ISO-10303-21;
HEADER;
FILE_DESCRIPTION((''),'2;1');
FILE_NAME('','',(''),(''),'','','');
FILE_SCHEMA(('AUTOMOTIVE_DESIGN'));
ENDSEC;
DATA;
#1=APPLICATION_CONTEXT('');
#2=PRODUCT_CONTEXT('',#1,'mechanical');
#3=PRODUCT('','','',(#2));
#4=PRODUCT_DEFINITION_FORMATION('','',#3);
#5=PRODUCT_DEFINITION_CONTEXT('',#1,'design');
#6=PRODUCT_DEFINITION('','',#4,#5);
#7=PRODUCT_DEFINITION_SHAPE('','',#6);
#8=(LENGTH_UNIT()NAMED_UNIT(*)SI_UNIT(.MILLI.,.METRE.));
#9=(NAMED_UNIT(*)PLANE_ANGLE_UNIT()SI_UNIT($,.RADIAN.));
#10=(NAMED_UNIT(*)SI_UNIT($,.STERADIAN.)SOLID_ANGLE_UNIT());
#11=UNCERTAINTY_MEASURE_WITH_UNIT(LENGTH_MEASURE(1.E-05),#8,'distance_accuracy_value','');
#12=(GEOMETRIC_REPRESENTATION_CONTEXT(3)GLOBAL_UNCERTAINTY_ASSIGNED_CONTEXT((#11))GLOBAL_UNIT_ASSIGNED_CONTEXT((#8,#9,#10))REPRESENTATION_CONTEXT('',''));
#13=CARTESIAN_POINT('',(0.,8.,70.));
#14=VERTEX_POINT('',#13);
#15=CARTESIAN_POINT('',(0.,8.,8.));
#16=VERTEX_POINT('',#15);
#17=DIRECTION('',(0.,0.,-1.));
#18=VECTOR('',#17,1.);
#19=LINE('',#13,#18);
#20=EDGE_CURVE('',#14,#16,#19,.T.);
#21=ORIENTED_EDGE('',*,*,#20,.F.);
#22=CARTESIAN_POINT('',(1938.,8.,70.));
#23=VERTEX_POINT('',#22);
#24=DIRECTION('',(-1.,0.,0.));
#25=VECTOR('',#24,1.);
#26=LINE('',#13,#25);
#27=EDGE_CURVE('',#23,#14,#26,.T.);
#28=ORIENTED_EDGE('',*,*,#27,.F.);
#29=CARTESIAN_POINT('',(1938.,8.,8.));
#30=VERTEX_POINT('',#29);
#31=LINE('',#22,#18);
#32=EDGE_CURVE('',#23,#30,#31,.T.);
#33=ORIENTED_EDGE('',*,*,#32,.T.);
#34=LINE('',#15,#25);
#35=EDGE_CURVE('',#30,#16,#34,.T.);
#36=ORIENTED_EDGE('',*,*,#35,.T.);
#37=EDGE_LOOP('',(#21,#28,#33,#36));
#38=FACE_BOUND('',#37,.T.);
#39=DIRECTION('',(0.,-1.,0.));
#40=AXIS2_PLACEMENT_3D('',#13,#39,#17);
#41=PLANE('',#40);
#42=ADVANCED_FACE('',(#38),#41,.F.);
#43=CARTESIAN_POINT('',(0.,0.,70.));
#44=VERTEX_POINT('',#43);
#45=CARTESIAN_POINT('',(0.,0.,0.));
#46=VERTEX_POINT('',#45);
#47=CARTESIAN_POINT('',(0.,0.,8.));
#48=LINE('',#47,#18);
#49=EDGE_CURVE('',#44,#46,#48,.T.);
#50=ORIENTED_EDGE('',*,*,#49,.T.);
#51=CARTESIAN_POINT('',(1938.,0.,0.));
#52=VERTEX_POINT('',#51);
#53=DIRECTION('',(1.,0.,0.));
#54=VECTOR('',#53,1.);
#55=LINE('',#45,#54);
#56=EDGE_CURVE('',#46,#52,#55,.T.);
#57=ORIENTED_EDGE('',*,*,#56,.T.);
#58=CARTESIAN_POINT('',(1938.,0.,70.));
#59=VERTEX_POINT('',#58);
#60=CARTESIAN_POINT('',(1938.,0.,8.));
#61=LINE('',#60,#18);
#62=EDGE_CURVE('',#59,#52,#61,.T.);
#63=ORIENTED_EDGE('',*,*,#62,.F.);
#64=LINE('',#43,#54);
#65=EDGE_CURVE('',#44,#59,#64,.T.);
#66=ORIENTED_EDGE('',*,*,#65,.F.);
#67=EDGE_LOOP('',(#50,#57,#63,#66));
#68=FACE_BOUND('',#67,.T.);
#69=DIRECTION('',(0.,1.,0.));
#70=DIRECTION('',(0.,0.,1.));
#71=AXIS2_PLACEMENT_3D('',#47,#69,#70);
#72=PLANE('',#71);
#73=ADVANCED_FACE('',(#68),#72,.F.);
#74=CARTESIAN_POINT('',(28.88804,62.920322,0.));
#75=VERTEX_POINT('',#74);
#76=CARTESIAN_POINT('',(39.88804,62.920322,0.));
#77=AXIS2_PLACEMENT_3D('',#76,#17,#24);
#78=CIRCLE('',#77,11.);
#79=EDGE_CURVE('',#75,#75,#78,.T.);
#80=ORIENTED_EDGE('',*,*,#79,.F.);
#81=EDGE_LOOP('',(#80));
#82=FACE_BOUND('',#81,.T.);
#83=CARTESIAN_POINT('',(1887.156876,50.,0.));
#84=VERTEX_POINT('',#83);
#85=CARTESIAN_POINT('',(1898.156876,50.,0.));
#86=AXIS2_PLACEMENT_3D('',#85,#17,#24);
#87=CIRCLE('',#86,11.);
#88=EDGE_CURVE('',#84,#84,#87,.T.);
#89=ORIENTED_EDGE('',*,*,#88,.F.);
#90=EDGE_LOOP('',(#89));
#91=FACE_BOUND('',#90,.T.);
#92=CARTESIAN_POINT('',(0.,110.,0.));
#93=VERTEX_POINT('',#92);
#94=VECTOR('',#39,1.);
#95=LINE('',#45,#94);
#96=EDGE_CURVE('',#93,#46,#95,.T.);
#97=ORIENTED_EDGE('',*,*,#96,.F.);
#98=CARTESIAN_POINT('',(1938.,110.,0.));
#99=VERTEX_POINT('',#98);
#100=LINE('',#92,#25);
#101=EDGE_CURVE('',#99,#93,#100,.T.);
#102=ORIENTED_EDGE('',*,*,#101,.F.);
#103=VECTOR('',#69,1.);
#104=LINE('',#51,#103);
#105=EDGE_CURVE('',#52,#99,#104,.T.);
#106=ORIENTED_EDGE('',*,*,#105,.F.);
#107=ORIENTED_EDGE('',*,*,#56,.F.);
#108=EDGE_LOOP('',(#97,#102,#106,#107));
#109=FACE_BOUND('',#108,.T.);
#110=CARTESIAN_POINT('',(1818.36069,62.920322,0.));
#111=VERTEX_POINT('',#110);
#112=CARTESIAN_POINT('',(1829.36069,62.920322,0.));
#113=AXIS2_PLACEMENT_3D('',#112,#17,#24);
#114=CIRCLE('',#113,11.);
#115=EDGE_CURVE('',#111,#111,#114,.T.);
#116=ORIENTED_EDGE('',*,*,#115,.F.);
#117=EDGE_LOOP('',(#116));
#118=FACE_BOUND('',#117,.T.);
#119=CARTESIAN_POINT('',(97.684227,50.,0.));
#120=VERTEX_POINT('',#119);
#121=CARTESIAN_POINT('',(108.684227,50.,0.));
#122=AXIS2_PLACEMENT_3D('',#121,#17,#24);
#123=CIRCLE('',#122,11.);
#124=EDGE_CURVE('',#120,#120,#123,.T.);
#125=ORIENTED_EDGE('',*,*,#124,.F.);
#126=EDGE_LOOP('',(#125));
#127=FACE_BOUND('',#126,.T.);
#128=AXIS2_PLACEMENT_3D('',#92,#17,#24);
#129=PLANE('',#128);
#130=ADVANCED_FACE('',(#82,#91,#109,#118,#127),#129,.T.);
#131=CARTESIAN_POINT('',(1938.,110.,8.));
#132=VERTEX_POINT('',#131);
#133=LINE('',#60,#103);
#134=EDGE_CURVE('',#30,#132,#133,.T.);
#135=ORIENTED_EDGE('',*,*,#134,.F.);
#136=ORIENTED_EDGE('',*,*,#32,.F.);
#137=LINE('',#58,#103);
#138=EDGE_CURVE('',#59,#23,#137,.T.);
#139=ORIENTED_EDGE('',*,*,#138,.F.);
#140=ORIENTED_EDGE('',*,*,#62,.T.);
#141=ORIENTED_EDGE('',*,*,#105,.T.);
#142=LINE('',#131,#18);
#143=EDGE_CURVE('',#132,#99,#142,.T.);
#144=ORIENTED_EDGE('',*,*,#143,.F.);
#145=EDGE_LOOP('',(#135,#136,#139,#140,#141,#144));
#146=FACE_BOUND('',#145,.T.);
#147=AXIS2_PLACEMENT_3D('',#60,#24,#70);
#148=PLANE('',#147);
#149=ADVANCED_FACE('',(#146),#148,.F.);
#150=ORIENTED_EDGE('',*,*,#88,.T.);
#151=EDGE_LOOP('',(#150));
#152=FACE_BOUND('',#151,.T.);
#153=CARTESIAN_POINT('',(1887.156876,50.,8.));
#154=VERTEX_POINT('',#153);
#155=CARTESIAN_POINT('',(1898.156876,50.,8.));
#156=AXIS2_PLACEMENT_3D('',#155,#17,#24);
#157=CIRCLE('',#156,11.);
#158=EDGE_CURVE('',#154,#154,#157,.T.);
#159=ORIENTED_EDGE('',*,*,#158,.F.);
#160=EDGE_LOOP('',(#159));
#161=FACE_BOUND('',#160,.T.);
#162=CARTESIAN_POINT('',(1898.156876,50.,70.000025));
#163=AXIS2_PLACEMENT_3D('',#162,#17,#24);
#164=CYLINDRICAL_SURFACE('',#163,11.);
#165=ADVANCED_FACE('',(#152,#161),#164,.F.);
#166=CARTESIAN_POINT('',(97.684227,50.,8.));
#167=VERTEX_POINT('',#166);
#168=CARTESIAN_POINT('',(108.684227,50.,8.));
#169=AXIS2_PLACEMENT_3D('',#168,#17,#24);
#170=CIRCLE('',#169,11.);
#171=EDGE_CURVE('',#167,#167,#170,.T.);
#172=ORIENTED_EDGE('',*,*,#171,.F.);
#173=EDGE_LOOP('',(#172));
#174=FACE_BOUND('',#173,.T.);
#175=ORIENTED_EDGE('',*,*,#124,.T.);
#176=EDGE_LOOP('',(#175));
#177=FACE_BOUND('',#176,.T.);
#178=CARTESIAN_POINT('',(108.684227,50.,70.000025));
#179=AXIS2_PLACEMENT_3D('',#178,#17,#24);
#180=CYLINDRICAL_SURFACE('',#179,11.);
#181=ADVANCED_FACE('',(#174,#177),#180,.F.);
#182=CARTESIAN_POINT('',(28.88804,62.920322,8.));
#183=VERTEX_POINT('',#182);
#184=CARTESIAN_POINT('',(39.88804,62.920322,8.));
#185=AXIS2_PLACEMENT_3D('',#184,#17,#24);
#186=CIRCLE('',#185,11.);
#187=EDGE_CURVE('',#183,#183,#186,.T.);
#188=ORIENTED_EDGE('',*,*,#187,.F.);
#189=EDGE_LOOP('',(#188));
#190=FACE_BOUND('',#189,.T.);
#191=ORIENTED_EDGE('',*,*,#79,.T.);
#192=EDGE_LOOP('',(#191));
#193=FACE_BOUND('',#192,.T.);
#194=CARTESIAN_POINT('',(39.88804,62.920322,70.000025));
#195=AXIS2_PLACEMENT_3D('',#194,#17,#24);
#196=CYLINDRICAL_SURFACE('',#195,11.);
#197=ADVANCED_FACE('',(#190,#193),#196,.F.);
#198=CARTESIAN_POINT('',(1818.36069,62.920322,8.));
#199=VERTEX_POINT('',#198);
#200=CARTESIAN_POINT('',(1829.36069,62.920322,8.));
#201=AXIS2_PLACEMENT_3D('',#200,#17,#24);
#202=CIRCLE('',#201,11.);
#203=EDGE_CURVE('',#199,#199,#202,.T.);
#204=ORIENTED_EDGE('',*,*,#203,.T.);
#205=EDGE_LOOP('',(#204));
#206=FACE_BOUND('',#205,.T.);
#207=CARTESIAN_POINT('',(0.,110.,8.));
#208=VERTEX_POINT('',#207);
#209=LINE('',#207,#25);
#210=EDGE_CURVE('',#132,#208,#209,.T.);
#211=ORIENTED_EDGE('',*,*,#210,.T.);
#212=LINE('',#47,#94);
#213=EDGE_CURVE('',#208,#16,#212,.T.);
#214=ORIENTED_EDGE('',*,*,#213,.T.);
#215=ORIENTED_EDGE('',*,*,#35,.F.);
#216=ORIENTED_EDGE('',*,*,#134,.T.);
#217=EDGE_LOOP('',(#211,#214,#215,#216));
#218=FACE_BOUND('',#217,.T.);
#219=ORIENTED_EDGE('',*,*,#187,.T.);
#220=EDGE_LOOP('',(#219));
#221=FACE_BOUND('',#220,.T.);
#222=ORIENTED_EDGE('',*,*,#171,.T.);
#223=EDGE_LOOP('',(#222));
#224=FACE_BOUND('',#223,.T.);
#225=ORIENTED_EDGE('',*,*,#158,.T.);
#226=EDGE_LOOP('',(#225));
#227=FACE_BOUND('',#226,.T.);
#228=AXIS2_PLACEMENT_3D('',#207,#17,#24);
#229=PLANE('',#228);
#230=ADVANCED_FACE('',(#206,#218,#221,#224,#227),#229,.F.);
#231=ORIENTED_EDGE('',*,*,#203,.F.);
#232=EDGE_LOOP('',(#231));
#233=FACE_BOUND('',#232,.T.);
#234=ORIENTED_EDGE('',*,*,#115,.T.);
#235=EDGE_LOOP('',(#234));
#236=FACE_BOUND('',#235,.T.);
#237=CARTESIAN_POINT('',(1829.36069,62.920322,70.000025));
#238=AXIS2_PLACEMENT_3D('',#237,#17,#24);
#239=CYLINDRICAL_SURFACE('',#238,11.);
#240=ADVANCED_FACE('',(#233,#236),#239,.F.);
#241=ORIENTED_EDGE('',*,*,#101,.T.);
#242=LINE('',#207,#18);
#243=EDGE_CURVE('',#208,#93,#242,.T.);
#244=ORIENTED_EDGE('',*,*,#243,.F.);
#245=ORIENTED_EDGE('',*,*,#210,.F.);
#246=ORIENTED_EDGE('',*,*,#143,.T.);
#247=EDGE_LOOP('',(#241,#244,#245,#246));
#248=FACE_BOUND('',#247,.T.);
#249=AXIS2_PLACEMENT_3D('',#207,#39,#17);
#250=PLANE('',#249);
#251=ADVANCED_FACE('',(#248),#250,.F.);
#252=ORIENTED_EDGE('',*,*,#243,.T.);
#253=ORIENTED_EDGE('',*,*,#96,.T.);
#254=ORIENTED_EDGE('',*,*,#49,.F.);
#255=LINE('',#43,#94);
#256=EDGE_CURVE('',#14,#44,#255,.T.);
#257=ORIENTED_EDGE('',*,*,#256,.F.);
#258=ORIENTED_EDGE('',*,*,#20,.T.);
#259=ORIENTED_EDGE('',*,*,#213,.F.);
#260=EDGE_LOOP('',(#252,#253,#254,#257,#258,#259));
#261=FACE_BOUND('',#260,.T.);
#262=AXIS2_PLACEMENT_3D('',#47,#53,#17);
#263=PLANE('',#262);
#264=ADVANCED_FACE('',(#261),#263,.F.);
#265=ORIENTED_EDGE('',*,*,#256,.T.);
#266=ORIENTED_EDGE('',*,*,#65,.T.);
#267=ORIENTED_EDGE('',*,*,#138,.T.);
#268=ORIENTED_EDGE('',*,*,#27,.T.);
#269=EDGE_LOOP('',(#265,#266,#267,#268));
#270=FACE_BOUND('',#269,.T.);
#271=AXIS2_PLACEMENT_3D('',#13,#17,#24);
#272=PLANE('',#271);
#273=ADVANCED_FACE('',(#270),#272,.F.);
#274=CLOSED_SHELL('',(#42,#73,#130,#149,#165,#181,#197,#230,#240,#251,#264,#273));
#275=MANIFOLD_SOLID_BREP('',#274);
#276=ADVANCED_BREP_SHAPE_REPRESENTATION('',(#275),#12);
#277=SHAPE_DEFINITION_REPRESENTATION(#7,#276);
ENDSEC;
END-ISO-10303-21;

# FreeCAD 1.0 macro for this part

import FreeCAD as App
import Part
import Sketcher

V = App.Vector


def add_polygon(sketch, points):
    """Adds a closed chain of lines whose ends are joined by coincident constraints."""
    first, n = sketch.GeometryCount, len(points)
    for a, b in zip(points, points[1:] + points[:1]):
        sketch.addGeometry(Part.LineSegment(App.Vector(*a, 0), App.Vector(*b, 0)), False)
    for i in range(n):
        sketch.addConstraint(Sketcher.Constraint("Coincident", first + i, 2, first + (i + 1) % n, 1))

doc = App.newDocument("Part")
body = doc.addObject("PartDesign::Body", "Body")

# Sketch on XY plane
sketch1 = body.newObject("Sketcher::SketchObject", "Sketch")
sketch1.AttachmentSupport = (doc.getObject("XY_Plane"), [""])
sketch1.MapMode = "FlatFace"
add_polygon(sketch1, [(0, 110), (0, 0), (1938, 0), (1938, 110)])  # lines 0-3
sketch1.addConstraint([
    Sketcher.Constraint("Vertical", 0),
    Sketcher.Constraint("Horizontal", 1),
    Sketcher.Constraint("Vertical", 2),
    Sketcher.Constraint("Horizontal", 3),
    Sketcher.Constraint("Coincident", 0, 2, -1, 1),
    Sketcher.Constraint("DistanceX", 1, 1, 1, 2, 1938.0),
    Sketcher.Constraint("DistanceY", 0, 2, 0, 1, 110.0),
])
pad1 = body.newObject("PartDesign::Pad", "Pad")
pad1.Profile = sketch1
pad1.Length = 8

# Sketch on XY plane
sketch2 = body.newObject("Sketcher::SketchObject", "Sketch001")
sketch2.AttachmentSupport = (doc.getObject("XY_Plane"), [""])
sketch2.MapMode = "FlatFace"
sketch2.AttachmentOffset = App.Placement(V(0, 0, 8), App.Rotation())
add_polygon(sketch2, [(0, 8), (0, 0), (1938, 0), (1938, 8)])  # lines 0-3
sketch2.addConstraint([
    Sketcher.Constraint("Vertical", 0),
    Sketcher.Constraint("Horizontal", 1),
    Sketcher.Constraint("Vertical", 2),
    Sketcher.Constraint("Horizontal", 3),
    Sketcher.Constraint("Coincident", 0, 2, -1, 1),
    Sketcher.Constraint("DistanceX", 1, 1, 1, 2, 1938.0),
    Sketcher.Constraint("DistanceY", 0, 2, 0, 1, 8.0),
])
pad2 = body.newObject("PartDesign::Pad", "Pad001")
pad2.Profile = sketch2
pad2.Length = 62

# Sketch on XY plane
sketch3 = body.newObject("Sketcher::SketchObject", "Sketch002")
sketch3.AttachmentSupport = (doc.getObject("XY_Plane"), [""])
sketch3.MapMode = "FlatFace"
sketch3.addGeometry([
    Part.Circle(V(1898, 50, 0), V(0, 0, 1), 11),
    Part.Circle(V(1829, 63, 0), V(0, 0, 1), 11),
    Part.Circle(V(109, 50, 0), V(0, 0, 1), 11),
    Part.Circle(V(40, 63, 0), V(0, 0, 1), 11),
], False)
sketch3.addConstraint([
    Sketcher.Constraint("Equal", 0, 1),
    Sketcher.Constraint("Equal", 1, 2),
    Sketcher.Constraint("Equal", 2, 3),
    Sketcher.Constraint("Horizontal", 0, 3, 2, 3),
    Sketcher.Constraint("Horizontal", 1, 3, 3, 3),
    Sketcher.Constraint("Diameter", 0, 22.0),
    Sketcher.Constraint("DistanceY", -1, 1, 0, 3, 50.0),
    Sketcher.Constraint("DistanceX", -1, 1, 1, 3, 1829.36069),
    Sketcher.Constraint("DistanceY", -1, 1, 1, 3, 62.920322),
    Sketcher.Constraint("DistanceX", -1, 1, 3, 3, 39.88804),
    Sketcher.Constraint("DistanceX", 2, 3, 0, 3, 1789.472649),
    Sketcher.Constraint("DistanceX", -1, 1, 0, 3, 1898.156876),
])
pocket1 = body.newObject("PartDesign::Pocket", "Pocket")
pocket1.Profile = sketch3
pocket1.Type = "ThroughAll"
pocket1.Reversed = True

doc.recompute()
